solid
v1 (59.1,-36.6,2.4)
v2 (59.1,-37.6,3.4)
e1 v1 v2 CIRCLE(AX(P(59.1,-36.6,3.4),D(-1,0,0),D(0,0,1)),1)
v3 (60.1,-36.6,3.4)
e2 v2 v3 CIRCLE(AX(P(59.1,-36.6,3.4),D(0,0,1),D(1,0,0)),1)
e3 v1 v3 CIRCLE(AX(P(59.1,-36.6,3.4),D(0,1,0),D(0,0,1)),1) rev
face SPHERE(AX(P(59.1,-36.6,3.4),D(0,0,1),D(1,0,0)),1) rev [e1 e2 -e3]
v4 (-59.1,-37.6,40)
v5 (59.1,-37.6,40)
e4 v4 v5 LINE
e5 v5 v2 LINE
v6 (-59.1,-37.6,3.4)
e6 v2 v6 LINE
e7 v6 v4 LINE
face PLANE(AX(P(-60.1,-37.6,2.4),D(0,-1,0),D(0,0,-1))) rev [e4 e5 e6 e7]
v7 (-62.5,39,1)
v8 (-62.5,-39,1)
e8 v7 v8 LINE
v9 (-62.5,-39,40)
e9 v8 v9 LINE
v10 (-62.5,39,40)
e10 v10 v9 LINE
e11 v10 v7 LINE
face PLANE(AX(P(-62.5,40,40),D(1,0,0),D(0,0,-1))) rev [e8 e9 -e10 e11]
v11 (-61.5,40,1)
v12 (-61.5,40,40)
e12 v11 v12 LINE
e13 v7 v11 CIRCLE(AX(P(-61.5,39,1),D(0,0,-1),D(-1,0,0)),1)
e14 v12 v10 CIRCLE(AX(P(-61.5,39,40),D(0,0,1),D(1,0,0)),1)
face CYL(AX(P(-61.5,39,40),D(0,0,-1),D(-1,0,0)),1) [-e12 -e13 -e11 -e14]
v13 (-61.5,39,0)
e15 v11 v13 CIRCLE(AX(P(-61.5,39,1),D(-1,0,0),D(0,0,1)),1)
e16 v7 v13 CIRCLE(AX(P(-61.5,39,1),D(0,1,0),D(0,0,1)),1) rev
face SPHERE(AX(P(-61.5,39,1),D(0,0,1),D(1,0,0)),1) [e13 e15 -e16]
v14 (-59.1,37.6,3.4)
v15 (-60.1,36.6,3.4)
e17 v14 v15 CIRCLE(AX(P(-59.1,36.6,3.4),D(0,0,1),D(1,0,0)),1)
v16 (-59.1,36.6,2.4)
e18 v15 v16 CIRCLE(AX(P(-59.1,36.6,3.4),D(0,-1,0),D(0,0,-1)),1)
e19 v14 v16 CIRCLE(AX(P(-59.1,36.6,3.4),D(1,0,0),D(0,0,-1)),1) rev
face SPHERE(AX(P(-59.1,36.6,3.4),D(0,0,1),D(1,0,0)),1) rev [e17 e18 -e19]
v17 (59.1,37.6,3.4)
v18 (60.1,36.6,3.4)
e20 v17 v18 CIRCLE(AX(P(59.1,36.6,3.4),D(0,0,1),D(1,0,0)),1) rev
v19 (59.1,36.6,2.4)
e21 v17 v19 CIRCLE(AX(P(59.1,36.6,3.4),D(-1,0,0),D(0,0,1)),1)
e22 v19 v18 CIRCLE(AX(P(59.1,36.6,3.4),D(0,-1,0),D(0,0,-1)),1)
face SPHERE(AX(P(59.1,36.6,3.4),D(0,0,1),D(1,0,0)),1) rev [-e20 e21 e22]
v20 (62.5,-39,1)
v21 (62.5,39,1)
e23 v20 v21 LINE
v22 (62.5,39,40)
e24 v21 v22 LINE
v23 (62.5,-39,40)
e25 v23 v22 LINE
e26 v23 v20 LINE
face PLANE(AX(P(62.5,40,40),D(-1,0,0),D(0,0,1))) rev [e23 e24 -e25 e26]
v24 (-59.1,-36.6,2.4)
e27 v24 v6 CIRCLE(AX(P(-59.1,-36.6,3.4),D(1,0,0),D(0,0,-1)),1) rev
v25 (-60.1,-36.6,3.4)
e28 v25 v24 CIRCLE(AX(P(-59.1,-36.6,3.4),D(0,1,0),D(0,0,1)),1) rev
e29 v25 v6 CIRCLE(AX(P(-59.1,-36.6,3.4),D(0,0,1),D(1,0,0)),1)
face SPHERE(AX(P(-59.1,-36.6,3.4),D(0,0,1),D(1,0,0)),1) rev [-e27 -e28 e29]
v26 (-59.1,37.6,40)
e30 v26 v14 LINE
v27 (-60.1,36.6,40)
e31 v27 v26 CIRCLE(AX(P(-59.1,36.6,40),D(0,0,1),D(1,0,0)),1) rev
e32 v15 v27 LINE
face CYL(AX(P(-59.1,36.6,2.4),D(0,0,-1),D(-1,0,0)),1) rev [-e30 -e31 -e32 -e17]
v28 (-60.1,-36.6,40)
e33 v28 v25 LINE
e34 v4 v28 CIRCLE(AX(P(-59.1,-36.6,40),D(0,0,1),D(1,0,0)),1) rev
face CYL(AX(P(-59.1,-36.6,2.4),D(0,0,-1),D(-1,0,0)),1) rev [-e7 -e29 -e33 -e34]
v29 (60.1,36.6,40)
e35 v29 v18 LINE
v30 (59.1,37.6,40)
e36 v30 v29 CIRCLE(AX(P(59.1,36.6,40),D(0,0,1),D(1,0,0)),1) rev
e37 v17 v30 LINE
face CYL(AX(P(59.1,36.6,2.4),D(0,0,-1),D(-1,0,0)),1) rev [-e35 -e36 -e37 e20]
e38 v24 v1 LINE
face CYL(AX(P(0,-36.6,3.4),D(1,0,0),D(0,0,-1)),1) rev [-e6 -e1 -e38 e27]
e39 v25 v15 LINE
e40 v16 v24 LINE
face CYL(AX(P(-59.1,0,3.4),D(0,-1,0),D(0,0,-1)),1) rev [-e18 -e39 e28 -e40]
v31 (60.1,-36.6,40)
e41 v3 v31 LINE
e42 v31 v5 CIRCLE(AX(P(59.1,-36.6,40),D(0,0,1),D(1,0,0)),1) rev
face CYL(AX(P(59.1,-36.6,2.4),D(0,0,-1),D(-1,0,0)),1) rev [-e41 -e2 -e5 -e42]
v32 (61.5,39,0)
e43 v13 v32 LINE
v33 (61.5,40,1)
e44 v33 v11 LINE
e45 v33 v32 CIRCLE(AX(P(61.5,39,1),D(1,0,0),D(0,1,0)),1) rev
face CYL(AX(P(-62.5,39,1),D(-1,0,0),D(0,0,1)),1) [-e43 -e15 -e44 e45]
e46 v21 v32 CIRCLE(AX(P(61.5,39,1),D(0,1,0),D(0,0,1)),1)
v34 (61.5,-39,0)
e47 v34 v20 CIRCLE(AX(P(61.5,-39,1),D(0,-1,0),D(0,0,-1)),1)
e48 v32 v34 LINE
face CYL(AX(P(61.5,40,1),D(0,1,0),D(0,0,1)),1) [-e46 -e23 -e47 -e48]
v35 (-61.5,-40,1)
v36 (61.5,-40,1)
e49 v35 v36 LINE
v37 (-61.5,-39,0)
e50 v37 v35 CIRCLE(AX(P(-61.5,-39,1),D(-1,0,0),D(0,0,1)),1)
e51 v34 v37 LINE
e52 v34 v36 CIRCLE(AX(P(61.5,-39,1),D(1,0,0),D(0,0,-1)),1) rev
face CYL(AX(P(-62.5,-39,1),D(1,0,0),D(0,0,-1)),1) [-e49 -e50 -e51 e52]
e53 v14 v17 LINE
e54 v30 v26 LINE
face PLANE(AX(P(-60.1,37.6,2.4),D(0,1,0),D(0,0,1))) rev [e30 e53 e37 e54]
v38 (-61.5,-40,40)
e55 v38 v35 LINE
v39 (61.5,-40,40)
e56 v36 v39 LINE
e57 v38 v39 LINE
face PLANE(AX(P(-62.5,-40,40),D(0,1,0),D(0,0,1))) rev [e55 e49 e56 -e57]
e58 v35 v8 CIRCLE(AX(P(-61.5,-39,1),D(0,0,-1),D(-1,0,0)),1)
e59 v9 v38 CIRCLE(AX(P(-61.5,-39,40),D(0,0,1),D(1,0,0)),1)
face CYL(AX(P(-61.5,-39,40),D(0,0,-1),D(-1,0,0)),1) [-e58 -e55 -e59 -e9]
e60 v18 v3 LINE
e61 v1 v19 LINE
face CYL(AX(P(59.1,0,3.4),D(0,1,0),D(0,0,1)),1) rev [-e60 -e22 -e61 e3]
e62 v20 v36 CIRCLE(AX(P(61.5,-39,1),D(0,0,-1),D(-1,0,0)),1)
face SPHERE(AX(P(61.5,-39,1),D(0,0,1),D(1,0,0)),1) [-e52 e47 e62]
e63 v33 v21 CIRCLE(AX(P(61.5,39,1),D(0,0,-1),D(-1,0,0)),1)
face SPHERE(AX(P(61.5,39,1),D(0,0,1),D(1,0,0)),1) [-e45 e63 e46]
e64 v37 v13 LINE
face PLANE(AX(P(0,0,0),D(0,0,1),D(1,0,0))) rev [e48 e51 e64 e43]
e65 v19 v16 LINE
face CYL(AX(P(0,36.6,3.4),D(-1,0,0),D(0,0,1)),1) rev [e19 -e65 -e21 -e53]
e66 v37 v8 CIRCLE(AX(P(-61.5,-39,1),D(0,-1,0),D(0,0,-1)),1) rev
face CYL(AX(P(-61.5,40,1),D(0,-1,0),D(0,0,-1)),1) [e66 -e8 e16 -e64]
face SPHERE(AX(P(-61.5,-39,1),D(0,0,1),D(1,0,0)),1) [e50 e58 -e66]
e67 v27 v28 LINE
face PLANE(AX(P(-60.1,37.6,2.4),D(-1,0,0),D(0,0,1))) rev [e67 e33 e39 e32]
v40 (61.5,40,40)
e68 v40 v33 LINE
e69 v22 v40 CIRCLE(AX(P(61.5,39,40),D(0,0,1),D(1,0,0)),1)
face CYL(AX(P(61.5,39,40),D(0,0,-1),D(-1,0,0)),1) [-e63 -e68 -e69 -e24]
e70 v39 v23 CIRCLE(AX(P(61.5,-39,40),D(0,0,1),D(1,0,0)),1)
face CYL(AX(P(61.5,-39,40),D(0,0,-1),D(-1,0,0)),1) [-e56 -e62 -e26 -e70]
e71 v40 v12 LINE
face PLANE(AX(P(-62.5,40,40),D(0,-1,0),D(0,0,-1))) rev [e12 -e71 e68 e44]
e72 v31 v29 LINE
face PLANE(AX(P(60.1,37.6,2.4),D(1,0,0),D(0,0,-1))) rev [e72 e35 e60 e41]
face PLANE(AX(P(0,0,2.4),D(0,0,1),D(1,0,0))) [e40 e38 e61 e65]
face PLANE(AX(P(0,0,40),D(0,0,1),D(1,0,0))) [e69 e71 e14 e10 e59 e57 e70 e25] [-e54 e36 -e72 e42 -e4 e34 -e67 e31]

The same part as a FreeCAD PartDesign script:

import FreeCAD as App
import Part
import Sketcher


def edges_at(feature, points):
    """Names of the edges that pass closest to the given points."""
    edges = feature.Shape.Edges
    near = lambda p: min(range(len(edges)), key=lambda i: edges[i].distToShape(Part.Vertex(*p))[0])
    return sorted({f"Edge{near(p) + 1}" for p in points})

doc = App.newDocument("Part")
body = doc.addObject("PartDesign::Body", "Body")

sketch1 = body.newObject("Sketcher::SketchObject", "Sketch")
sketch1.AttachmentSupport = (doc.getObject("XY_Plane"), [""])
sketch1.MapMode = "FlatFace"
sketch1.addGeometry([
    Part.LineSegment(App.Vector(-62, 40, 0), App.Vector(-62, -40, 0)),
    Part.LineSegment(App.Vector(-62, -40, 0), App.Vector(62, -40, 0)),
    Part.LineSegment(App.Vector(62, -40, 0), App.Vector(62, 40, 0)),
    Part.LineSegment(App.Vector(62, 40, 0), App.Vector(-62, 40, 0)),
], False)
sketch1.addConstraint([
    Sketcher.Constraint("Coincident", 0, 2, 1, 1),
    Sketcher.Constraint("Coincident", 1, 2, 2, 1),
    Sketcher.Constraint("Coincident", 2, 2, 3, 1),
    Sketcher.Constraint("Coincident", 3, 2, 0, 1),
    Sketcher.Constraint("Vertical", 0),
    Sketcher.Constraint("Horizontal", 1),
    Sketcher.Constraint("Vertical", 2),
    Sketcher.Constraint("Horizontal", 3),
    Sketcher.Constraint("Symmetric", 0, 2, 2, 2, -1, 1),
    Sketcher.Constraint("DistanceX", 1, 1, 1, 2, 125.0),
    Sketcher.Constraint("DistanceY", 0, 2, 0, 1, 80.0),
])
pad1 = body.newObject("PartDesign::Pad", "Pad")
pad1.Profile = sketch1
pad1.Length = 40

sketch2 = body.newObject("Sketcher::SketchObject", "Sketch001")
sketch2.AttachmentSupport = (doc.getObject("XY_Plane"), [""])
sketch2.MapMode = "FlatFace"
sketch2.AttachmentOffset = App.Placement(App.Vector(0, 0, 40), App.Rotation())
sketch2.addGeometry([
    Part.LineSegment(App.Vector(-60, 38, 0), App.Vector(-60, -38, 0)),
    Part.LineSegment(App.Vector(-60, -38, 0), App.Vector(60, -38, 0)),
    Part.LineSegment(App.Vector(60, -38, 0), App.Vector(60, 38, 0)),
    Part.LineSegment(App.Vector(60, 38, 0), App.Vector(-60, 38, 0)),
], False)
sketch2.addConstraint([
    Sketcher.Constraint("Coincident", 0, 2, 1, 1),
    Sketcher.Constraint("Coincident", 1, 2, 2, 1),
    Sketcher.Constraint("Coincident", 2, 2, 3, 1),
    Sketcher.Constraint("Coincident", 3, 2, 0, 1),
    Sketcher.Constraint("Vertical", 0),
    Sketcher.Constraint("Horizontal", 1),
    Sketcher.Constraint("Vertical", 2),
    Sketcher.Constraint("Horizontal", 3),
    Sketcher.Constraint("Symmetric", 0, 2, 2, 2, -1, 1),
    Sketcher.Constraint("DistanceX", 1, 1, 1, 2, 120.2),
    Sketcher.Constraint("DistanceY", 0, 2, 0, 1, 75.2),
])
pocket1 = body.newObject("PartDesign::Pocket", "Pocket")
pocket1.Profile = sketch2
pocket1.Length = 37.6
doc.recompute()

fillet = body.newObject("PartDesign::Fillet", "Fillet")
fillet.Base = (pocket1, edges_at(pocket1, [
    (0, -40, 0),
    (-62.5, 0, 0),
    (0, 40, 0),
    (62.5, 0, 0),
    (62.5, -40, 20),
    (-62.5, -40, 20),
    (-62.5, 40, 20),
    (62.5, 40, 20),
]))
fillet.Radius = 1
doc.recompute()

fillet2 = body.newObject("PartDesign::Fillet", "Fillet001")
fillet2.Base = (fillet, edges_at(fillet, [
    (60.1, 0, 2.4),
    (60.1, 37.6, 21.2),
    (0, -37.6, 2.4),
    (60.1, -37.6, 21.2),
    (-60.1, 0, 2.4),
    (-60.1, -37.6, 21.2),
    (0, 37.6, 2.4),
    (-60.1, 37.6, 21.2),
]))
fillet2.Radius = 1

doc.recompute()
